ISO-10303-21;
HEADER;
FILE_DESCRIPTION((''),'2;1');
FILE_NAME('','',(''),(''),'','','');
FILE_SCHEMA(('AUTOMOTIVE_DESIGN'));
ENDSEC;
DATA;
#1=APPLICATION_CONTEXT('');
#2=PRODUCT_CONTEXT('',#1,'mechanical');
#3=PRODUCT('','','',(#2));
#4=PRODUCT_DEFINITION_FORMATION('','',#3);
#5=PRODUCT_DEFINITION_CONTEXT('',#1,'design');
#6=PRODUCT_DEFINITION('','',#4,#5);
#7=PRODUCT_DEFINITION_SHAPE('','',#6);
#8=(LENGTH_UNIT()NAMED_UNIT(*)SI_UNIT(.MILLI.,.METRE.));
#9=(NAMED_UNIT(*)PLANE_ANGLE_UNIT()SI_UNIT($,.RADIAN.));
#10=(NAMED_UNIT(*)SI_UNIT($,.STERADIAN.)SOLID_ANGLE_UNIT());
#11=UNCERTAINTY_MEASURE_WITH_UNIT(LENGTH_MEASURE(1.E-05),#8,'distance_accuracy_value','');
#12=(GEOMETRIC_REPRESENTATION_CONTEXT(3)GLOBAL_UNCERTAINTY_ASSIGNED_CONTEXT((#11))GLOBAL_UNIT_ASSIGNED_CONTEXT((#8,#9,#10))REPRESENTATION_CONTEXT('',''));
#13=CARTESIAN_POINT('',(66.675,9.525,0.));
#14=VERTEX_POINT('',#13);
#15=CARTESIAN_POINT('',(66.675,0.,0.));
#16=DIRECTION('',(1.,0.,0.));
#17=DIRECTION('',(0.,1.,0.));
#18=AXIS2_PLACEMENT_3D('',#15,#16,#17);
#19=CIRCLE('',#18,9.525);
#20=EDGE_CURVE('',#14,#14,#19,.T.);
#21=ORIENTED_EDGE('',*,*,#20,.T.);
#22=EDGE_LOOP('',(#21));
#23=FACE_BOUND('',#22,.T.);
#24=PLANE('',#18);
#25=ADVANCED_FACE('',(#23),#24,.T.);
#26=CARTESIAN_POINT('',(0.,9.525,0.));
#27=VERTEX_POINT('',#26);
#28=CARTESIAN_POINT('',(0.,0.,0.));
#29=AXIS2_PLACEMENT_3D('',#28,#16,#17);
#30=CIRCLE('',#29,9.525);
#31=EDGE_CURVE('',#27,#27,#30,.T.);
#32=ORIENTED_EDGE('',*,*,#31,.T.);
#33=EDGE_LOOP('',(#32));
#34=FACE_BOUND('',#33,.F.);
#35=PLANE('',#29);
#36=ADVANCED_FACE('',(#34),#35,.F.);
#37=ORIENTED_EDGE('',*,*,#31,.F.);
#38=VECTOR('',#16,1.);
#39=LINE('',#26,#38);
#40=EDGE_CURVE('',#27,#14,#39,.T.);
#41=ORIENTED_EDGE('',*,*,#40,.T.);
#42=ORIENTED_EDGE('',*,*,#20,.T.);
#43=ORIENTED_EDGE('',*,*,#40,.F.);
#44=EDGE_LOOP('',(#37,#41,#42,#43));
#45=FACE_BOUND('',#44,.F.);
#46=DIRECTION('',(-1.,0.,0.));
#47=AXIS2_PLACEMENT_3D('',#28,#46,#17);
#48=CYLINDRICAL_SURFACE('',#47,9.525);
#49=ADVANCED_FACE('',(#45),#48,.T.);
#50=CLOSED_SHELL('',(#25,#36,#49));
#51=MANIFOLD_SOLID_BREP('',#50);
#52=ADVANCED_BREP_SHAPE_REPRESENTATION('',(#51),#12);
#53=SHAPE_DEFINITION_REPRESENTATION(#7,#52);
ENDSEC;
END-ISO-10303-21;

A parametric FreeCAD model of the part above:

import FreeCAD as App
import Part
import Sketcher

V = App.Vector
Q = App.Units.Quantity

doc = App.newDocument("Part")
body = doc.addObject("PartDesign::Body", "Body")

sketch1 = body.newObject("Sketcher::SketchObject", "Sketch")
sketch1.AttachmentSupport = (doc.getObject("YZ_Plane"), [""])
sketch1.MapMode = "FlatFace"
sketch1.addGeometry(Part.Circle(V(0, 0, 0), V(0, 0, 1), 10), False)
sketch1.addConstraint([
    Sketcher.Constraint("Coincident", 0, 3, -1, 1),
    Sketcher.Constraint("Diameter", 0, Q("0.75 in")),
])
pad1 = body.newObject("PartDesign::Pad", "Pad")
pad1.Profile = sketch1
pad1.Length = Q("2.625 in")

doc.recompute()
